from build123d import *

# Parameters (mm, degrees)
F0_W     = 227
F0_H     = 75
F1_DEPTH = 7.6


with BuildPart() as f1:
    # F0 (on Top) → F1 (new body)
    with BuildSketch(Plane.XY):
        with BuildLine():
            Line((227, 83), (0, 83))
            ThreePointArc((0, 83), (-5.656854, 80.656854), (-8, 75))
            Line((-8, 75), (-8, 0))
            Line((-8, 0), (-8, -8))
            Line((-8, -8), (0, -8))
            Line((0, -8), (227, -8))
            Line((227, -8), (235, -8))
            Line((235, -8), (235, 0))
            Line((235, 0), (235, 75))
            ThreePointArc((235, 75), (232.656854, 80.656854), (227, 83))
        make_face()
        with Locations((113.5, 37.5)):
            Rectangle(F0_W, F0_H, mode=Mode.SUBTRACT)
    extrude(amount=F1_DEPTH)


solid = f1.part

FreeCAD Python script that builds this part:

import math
import FreeCAD as App
import Part
import Sketcher

doc = App.newDocument("Part")
body = doc.addObject("PartDesign::Body", "Body")

# Sketch on XY plane
sketch1 = doc.addObject("Sketcher::SketchObject", "Sketch")
body.addObject(sketch1)
sketch1.AttachmentSupport = (doc.XY_Plane, [""])
sketch1.MapMode = "FlatFace"
sketch1.addGeometry([
    Part.LineSegment(App.Vector(227, 83, 0), App.Vector(0, 83, 0)),  # 0
    Part.ArcOfCircle(Part.Circle(App.Vector(0, 75, 0), App.Vector(0, 0, 1), 8), math.radians(90), math.radians(180)),  # 1
    Part.LineSegment(App.Vector(-8, 75, 0), App.Vector(-8, -8, 0)),  # 2
    Part.LineSegment(App.Vector(-8, -8, 0), App.Vector(235, -8, 0)),  # 3
    Part.LineSegment(App.Vector(235, -8, 0), App.Vector(235, 75, 0)),  # 4
    Part.ArcOfCircle(Part.Circle(App.Vector(227, 75, 0), App.Vector(0, 0, 1), 8), math.radians(0), math.radians(90)),  # 5
    Part.LineSegment(App.Vector(227, 0, 0), App.Vector(0, 0, 0)),  # 6
    Part.LineSegment(App.Vector(0, 0, 0), App.Vector(0, 75, 0)),  # 7
    Part.LineSegment(App.Vector(0, 75, 0), App.Vector(227, 75, 0)),  # 8
    Part.LineSegment(App.Vector(227, 75, 0), App.Vector(227, 0, 0)),  # 9
], False)
sketch1.addConstraint([
    Sketcher.Constraint("Tangent", 0, 2, 1, 1),
    Sketcher.Constraint("Tangent", 1, 2, 2, 1),
    Sketcher.Constraint("Coincident", 2, 2, 3, 1),
    Sketcher.Constraint("Coincident", 3, 2, 4, 1),
    Sketcher.Constraint("Tangent", 4, 2, 5, 1),
    Sketcher.Constraint("Tangent", 5, 2, 0, 1),
    Sketcher.Constraint("Coincident", 6, 2, 7, 1),
    Sketcher.Constraint("Coincident", 7, 2, 8, 1),
    Sketcher.Constraint("Coincident", 8, 2, 9, 1),
    Sketcher.Constraint("Coincident", 9, 2, 6, 1),
    Sketcher.Constraint("Horizontal", 0),
    Sketcher.Constraint("Vertical", 2),
    Sketcher.Constraint("Horizontal", 3),
    Sketcher.Constraint("Vertical", 4),
    Sketcher.Constraint("Horizontal", 6),
    Sketcher.Constraint("Vertical", 7),
    Sketcher.Constraint("Horizontal", 8),
    Sketcher.Constraint("Vertical", 9),
    Sketcher.Constraint("Coincident", 6, 2, -1, 1),
    Sketcher.Constraint("Coincident", 7, 2, 1, 3),
    Sketcher.Constraint("Coincident", 8, 2, 5, 3),
    Sketcher.Constraint("Radius", 1, 8.000001),
    Sketcher.Constraint("DistanceX", 0, 2, 0, 1, 227.0),
    Sketcher.Constraint("DistanceY", 2, 2, 2, 1, 83.0),
    Sketcher.Constraint("DistanceY", 7, 1, 7, 2, 75.0),
])
pad1 = doc.addObject("PartDesign::Pad", "Pad")
body.addObject(pad1)
pad1.Profile = sketch1
pad1.Length = 7.6

doc.recompute()
